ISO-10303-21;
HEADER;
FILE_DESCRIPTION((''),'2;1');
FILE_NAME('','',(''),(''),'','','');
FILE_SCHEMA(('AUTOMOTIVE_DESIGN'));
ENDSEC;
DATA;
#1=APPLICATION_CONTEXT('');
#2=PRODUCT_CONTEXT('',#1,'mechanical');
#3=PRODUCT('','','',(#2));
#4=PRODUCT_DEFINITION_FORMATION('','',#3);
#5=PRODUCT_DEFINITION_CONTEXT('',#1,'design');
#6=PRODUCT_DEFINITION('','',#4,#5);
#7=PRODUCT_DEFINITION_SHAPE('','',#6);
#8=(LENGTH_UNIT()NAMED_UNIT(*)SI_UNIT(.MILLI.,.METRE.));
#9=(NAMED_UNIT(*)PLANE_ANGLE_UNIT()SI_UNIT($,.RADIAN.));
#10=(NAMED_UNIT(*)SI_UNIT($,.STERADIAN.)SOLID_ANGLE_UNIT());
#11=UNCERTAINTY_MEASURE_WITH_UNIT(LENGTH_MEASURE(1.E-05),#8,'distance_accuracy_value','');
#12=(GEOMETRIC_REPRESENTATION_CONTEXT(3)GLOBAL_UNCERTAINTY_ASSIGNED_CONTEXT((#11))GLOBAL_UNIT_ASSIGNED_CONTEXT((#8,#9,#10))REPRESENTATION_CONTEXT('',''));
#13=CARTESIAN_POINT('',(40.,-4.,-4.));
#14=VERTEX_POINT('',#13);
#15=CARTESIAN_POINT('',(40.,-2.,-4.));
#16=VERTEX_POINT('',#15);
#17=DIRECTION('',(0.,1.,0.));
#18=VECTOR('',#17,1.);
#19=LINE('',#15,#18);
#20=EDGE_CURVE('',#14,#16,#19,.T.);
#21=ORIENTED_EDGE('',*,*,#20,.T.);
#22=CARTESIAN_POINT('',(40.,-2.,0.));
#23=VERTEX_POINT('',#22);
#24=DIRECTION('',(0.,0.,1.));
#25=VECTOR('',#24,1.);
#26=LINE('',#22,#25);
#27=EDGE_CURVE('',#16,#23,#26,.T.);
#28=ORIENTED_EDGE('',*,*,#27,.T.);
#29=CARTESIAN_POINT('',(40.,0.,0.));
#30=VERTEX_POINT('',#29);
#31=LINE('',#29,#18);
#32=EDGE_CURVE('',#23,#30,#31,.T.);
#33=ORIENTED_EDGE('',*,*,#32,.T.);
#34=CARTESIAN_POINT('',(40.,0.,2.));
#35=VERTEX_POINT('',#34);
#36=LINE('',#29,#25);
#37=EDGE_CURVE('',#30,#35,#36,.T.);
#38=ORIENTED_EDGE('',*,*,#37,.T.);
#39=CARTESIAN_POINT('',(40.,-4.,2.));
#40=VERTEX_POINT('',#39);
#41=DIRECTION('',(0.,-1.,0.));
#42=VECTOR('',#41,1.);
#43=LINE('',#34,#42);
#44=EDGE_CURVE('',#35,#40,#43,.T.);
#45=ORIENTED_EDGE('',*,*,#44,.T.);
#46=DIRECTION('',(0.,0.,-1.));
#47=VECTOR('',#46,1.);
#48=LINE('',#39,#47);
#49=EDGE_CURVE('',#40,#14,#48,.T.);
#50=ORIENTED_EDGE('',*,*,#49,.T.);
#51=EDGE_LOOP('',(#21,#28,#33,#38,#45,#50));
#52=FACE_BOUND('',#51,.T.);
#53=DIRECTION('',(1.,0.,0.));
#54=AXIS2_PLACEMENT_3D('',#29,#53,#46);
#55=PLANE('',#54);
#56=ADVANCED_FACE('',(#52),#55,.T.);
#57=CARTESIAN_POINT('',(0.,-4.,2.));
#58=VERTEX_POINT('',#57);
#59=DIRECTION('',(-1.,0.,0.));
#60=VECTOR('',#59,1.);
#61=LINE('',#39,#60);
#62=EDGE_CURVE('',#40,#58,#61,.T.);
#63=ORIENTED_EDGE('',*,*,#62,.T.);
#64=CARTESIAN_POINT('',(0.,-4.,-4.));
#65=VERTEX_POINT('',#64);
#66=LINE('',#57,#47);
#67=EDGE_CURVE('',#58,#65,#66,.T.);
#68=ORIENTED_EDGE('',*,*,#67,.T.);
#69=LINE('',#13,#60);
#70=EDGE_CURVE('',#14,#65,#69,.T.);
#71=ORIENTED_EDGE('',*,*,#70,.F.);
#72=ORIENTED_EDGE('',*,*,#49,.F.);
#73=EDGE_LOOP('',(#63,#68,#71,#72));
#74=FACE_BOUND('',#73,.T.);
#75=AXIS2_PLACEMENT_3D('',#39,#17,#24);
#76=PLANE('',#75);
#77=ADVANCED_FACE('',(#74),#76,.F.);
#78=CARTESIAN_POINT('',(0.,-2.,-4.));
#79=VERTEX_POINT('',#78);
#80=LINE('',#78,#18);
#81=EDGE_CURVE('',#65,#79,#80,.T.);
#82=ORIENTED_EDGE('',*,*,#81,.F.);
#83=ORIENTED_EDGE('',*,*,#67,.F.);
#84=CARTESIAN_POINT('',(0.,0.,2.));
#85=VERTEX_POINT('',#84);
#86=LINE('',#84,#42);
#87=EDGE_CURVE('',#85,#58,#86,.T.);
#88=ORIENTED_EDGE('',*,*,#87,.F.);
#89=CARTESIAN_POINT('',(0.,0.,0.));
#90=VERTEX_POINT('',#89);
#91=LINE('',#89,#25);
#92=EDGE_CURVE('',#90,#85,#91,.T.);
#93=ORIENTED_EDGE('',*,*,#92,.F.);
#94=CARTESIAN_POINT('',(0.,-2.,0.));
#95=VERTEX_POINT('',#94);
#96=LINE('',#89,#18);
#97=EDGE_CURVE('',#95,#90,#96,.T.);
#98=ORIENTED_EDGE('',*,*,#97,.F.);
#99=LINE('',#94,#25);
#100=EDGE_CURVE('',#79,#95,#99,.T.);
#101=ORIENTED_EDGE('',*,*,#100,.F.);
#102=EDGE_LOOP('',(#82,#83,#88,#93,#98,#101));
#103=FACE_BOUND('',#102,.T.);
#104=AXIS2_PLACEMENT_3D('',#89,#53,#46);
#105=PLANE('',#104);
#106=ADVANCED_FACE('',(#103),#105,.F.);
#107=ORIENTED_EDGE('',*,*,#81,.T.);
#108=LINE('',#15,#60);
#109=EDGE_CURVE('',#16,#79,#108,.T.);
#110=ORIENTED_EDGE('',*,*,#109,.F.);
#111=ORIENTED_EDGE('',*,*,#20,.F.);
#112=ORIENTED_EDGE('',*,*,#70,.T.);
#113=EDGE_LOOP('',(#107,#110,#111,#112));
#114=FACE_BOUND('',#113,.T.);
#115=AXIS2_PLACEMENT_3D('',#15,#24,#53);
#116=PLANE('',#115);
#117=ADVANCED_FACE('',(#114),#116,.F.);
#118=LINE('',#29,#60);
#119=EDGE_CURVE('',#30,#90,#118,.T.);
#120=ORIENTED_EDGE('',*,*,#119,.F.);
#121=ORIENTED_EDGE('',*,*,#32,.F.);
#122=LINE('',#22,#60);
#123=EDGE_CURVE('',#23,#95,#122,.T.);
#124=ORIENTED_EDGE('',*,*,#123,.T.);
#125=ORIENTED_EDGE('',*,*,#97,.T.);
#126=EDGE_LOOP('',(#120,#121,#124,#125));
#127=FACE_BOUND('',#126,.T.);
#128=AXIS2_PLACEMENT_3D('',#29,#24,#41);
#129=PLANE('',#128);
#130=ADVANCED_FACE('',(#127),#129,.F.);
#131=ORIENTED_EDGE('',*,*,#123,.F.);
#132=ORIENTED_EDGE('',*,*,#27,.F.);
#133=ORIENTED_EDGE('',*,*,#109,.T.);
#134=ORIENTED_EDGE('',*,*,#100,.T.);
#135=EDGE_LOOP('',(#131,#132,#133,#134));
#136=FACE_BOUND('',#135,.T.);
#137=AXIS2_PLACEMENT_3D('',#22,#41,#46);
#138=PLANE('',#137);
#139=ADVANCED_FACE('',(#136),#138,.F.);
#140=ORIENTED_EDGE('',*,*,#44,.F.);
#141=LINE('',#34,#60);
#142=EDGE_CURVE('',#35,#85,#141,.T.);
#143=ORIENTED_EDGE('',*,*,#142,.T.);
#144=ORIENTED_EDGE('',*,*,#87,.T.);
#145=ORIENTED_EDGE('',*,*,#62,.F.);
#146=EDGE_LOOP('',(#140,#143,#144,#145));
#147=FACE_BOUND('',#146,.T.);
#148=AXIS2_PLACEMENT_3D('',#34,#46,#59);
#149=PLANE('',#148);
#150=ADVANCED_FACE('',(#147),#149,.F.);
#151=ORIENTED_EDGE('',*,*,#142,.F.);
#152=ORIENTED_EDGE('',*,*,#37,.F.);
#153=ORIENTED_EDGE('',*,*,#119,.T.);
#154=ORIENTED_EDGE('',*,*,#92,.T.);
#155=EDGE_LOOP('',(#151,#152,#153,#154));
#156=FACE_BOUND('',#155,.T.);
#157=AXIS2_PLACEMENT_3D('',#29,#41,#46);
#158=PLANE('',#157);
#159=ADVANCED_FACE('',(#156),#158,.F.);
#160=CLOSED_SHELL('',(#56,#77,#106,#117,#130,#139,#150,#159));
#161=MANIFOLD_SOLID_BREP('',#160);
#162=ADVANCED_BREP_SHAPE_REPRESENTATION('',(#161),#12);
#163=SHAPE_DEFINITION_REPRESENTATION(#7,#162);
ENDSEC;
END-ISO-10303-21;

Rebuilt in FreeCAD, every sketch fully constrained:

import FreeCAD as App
import Part
import Sketcher

V = App.Vector

doc = App.newDocument("Part")
body = doc.addObject("PartDesign::Body", "Body")

sketch1 = doc.addObject("Sketcher::SketchObject", "Sketch")
body.addObject(sketch1)
sketch1.AttachmentSupport = (doc.YZ_Plane, [""])
sketch1.MapMode = "FlatFace"
sketch1.addGeometry([
    Part.LineSegment(V(-2, 0, 0), V(0, 0, 0)),
    Part.LineSegment(V(0, 0, 0), V(0, 2, 0)),
    Part.LineSegment(V(0, 2, 0), V(-4, 2, 0)),
    Part.LineSegment(V(-4, 2, 0), V(-4, -4, 0)),
    Part.LineSegment(V(-4, -4, 0), V(-2, -4, 0)),
    Part.LineSegment(V(-2, -4, 0), V(-2, 0, 0)),
], False)
sketch1.addConstraint([
    Sketcher.Constraint("Coincident", 0, 2, 1, 1),
    Sketcher.Constraint("Coincident", 1, 2, 2, 1),
    Sketcher.Constraint("Coincident", 2, 2, 3, 1),
    Sketcher.Constraint("Coincident", 3, 2, 4, 1),
    Sketcher.Constraint("Coincident", 4, 2, 5, 1),
    Sketcher.Constraint("Coincident", 5, 2, 0, 1),
    Sketcher.Constraint("Horizontal", 0),
    Sketcher.Constraint("Vertical", 1),
    Sketcher.Constraint("Horizontal", 2),
    Sketcher.Constraint("Vertical", 3),
    Sketcher.Constraint("Horizontal", 4),
    Sketcher.Constraint("Vertical", 5),
    Sketcher.Constraint("Coincident", 0, 2, -1, 1),
    Sketcher.Constraint("Equal", 0, 4),
    Sketcher.Constraint("Equal", 4, 1),
    Sketcher.Constraint("Equal", 2, 5),
    Sketcher.Constraint("DistanceX", 0, 1, 0, 2, 2.0),
])
pad1 = doc.addObject("PartDesign::Pad", "Pad")
body.addObject(pad1)
pad1.Profile = sketch1
pad1.Length = 40

doc.recompute()
